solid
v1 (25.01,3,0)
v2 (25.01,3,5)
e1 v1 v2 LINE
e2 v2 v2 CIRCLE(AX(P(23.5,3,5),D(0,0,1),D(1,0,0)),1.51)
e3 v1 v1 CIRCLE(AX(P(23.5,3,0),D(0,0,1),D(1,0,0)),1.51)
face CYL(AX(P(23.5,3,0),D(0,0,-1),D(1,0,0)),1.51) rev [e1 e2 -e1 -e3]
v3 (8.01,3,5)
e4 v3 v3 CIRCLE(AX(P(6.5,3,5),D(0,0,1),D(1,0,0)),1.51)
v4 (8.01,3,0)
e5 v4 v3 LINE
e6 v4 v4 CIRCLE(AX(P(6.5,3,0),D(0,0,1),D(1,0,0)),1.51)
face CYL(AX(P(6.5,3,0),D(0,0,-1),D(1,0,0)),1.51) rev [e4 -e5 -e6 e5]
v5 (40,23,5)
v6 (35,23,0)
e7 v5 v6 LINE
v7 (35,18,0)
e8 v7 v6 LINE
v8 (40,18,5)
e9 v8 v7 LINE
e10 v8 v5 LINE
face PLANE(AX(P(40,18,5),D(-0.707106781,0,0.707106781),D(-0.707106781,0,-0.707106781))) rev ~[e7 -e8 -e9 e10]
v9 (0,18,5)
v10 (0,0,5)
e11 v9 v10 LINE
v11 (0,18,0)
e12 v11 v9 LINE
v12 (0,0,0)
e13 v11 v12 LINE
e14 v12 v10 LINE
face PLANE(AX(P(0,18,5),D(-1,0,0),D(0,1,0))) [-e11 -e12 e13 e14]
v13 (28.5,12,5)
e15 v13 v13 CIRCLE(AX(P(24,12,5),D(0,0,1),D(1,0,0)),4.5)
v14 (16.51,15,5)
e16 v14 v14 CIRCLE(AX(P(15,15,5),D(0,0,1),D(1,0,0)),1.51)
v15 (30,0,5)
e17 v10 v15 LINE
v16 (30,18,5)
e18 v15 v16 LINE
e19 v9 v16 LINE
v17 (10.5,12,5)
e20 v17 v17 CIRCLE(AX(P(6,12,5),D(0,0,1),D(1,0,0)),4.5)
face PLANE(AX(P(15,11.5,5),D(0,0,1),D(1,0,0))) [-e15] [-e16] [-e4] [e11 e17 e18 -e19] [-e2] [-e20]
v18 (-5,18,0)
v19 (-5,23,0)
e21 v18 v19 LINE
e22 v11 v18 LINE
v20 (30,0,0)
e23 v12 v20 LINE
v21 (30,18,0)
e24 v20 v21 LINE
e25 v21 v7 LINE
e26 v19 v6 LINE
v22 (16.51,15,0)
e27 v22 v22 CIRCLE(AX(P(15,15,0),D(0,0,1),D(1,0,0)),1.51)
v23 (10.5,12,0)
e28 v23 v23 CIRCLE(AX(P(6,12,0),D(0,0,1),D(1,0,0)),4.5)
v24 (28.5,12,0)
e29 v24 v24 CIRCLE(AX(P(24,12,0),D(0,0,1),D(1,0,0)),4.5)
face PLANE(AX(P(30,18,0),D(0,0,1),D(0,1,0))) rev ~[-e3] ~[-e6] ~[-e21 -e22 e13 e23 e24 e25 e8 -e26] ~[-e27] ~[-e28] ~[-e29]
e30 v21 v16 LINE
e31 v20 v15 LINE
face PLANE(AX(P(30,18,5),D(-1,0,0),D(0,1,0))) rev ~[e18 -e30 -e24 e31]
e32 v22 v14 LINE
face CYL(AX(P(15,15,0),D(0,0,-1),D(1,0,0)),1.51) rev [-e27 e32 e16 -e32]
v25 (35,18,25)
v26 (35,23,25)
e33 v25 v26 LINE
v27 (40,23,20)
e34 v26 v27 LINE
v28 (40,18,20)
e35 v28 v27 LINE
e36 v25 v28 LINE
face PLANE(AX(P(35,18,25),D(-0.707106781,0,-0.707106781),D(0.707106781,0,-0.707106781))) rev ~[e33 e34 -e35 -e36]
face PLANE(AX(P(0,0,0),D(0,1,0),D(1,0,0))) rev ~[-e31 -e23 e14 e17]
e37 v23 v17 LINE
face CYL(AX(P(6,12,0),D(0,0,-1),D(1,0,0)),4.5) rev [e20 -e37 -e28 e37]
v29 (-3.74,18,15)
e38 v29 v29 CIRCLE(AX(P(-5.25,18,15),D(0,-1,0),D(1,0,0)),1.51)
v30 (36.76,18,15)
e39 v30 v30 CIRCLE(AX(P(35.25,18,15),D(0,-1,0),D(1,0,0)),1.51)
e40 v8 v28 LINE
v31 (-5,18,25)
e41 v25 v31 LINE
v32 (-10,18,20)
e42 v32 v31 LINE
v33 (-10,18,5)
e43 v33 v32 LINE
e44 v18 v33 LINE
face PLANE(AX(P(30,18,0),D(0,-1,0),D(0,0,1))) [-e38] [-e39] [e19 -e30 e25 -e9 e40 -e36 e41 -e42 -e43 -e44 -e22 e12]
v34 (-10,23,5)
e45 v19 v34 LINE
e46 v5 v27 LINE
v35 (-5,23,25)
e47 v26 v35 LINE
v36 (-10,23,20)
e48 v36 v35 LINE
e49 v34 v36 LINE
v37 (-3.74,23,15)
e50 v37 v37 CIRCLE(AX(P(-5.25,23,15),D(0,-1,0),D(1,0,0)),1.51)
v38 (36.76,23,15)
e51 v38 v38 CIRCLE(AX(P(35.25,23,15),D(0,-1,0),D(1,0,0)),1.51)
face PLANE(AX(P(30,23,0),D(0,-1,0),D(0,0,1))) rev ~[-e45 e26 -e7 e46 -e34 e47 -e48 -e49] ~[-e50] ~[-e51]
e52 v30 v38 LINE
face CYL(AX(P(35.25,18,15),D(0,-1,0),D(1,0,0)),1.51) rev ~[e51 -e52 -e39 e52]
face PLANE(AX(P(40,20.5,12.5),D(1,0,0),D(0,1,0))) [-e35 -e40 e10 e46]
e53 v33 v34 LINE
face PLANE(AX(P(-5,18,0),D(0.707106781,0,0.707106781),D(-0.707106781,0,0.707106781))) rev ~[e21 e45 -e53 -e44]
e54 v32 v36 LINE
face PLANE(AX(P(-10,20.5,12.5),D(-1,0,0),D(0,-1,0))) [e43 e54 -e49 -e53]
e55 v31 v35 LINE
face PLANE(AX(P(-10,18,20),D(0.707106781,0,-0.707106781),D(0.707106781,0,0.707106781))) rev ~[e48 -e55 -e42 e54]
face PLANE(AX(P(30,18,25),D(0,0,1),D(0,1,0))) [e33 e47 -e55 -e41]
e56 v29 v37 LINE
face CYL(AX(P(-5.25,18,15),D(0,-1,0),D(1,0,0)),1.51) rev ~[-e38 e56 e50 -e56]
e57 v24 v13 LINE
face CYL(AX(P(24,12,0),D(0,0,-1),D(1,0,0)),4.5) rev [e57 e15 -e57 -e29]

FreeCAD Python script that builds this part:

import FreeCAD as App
import Part
import Sketcher

V = App.Vector
Q = App.Units.Quantity

doc = App.newDocument("Part")
body = doc.addObject("PartDesign::Body", "Body")

# Sketch on XY plane
sketch1 = doc.addObject("Sketcher::SketchObject", "Sketch")
body.addObject(sketch1)
sketch1.AttachmentSupport = (doc.XY_Plane, [""])
sketch1.MapMode = "FlatFace"
sketch1.addGeometry([
    Part.LineSegment(V(0, 0, 0), V(30, 0, 0)),  # 0
    Part.LineSegment(V(30, 0, 0), V(30, 23, 0)),  # 1
    Part.LineSegment(V(30, 23, 0), V(0, 23, 0)),  # 2
    Part.LineSegment(V(0, 23, 0), V(0, 0, 0)),  # 3
    Part.Circle(V(6.5, 3, 0), V(0, 0, 1), 1.51),  # 4
    Part.Circle(V(23.5, 3, 0), V(0, 0, 1), 1.51),  # 5
    Part.Circle(V(6, 12, 0), V(0, 0, 1), 4.5),  # 6
    Part.Circle(V(24, 12, 0), V(0, 0, 1), 4.5),  # 7
    Part.Circle(V(15, 15, 0), V(0, 0, 1), 1.51),  # 8
], False)
sketch1.addConstraint([
    Sketcher.Constraint("Coincident", 0, 2, 1, 1),
    Sketcher.Constraint("Coincident", 1, 2, 2, 1),
    Sketcher.Constraint("Coincident", 2, 2, 3, 1),
    Sketcher.Constraint("Coincident", 3, 2, 0, 1),
    Sketcher.Constraint("Horizontal", 0),
    Sketcher.Constraint("Vertical", 1),
    Sketcher.Constraint("Horizontal", 2),
    Sketcher.Constraint("Vertical", 3),
    Sketcher.Constraint("Coincident", 3, 2, -1, 1),
    Sketcher.Constraint("Equal", 4, 5),
    Sketcher.Constraint("Equal", 6, 7),
    Sketcher.Constraint("Equal", 5, 8),
    Sketcher.Constraint("Horizontal", 4, 3, 5, 3),
    Sketcher.Constraint("Horizontal", 6, 3, 7, 3),
    Sketcher.Constraint("Diameter", 6, Q("9 mm")),
    Sketcher.Constraint("Diameter", 4, Q("3.02 mm")),
    Sketcher.Constraint("DistanceX", 0, 1, 0, 2, Q("30 mm")),
    Sketcher.Constraint("DistanceY", 1, 1, 1, 2, Q("23 mm")),
    Sketcher.Constraint("DistanceY", -1, 1, 4, 3, Q("3 mm")),
    Sketcher.Constraint("DistanceX", -1, 1, 6, 3, Q("6 mm")),
    Sketcher.Constraint("DistanceY", -1, 1, 6, 3, Q("12 mm")),
    Sketcher.Constraint("DistanceX", -1, 1, 7, 3, Q("24 mm")),
    Sketcher.Constraint("DistanceX", -1, 1, 8, 3, Q("15 mm")),
    Sketcher.Constraint("DistanceY", -1, 1, 8, 3, Q("15 mm")),
    Sketcher.Constraint("DistanceX", 4, 3, 5, 3, Q("17 mm")),
    Sketcher.Constraint("DistanceX", -1, 1, 4, 3, Q("6.5 mm")),
])
pad1 = doc.addObject("PartDesign::Pad", "Pad")
body.addObject(pad1)
pad1.Profile = sketch1
pad1.Length = 5

# Sketch on XY plane
sketch2 = doc.addObject("Sketcher::SketchObject", "Sketch001")
body.addObject(sketch2)
sketch2.AttachmentSupport = (doc.XY_Plane, [""])
sketch2.MapMode = "FlatFace"
sketch2.AttachmentOffset = App.Placement(V(0, 0, 5), App.Rotation())
sketch2.addGeometry([
    Part.LineSegment(V(0, 23, 0), V(0, 18, 0)),
    Part.LineSegment(V(0, 18, 0), V(30, 18, 0)),
    Part.LineSegment(V(30, 18, 0), V(30, 23, 0)),
    Part.LineSegment(V(30, 23, 0), V(0, 23, 0)),
], False)
sketch2.addConstraint([
    Sketcher.Constraint("Coincident", 0, 2, 1, 1),
    Sketcher.Constraint("Coincident", 1, 2, 2, 1),
    Sketcher.Constraint("Coincident", 2, 2, 3, 1),
    Sketcher.Constraint("Coincident", 3, 2, 0, 1),
    Sketcher.Constraint("Vertical", 0),
    Sketcher.Constraint("Horizontal", 1),
    Sketcher.Constraint("Vertical", 2),
    Sketcher.Constraint("Horizontal", 3),
    Sketcher.Constraint("PointOnObject", 0, 2, -2),
    Sketcher.Constraint("DistanceX", 1, 1, 1, 2, Q("30 mm")),
    Sketcher.Constraint("DistanceY", 0, 2, 0, 1, Q("5 mm")),
    Sketcher.Constraint("DistanceY", -1, 1, 0, 2, Q("18 mm")),
])
pad2 = doc.addObject("PartDesign::Pad", "Pad001")
body.addObject(pad2)
pad2.Profile = sketch2
pad2.Length = 20

# Sketch on YZ plane
sketch3 = doc.addObject("Sketcher::SketchObject", "Sketch002")
body.addObject(sketch3)
sketch3.AttachmentSupport = (doc.YZ_Plane, [""])
sketch3.MapMode = "FlatFace"
sketch3.addGeometry([
    Part.LineSegment(V(23, 25, 0), V(23, 0, 0)),
    Part.LineSegment(V(23, 0, 0), V(18, 0, 0)),
    Part.LineSegment(V(18, 0, 0), V(18, 25, 0)),
    Part.LineSegment(V(18, 25, 0), V(23, 25, 0)),
], False)
sketch3.addConstraint([
    Sketcher.Constraint("Coincident", 0, 2, 1, 1),
    Sketcher.Constraint("Coincident", 1, 2, 2, 1),
    Sketcher.Constraint("Coincident", 2, 2, 3, 1),
    Sketcher.Constraint("Coincident", 3, 2, 0, 1),
    Sketcher.Constraint("Vertical", 0),
    Sketcher.Constraint("Horizontal", 1),
    Sketcher.Constraint("Vertical", 2),
    Sketcher.Constraint("Horizontal", 3),
    Sketcher.Constraint("PointOnObject", 0, 2, -1),
    Sketcher.Constraint("DistanceX", 1, 2, 1, 1, Q("5 mm")),
    Sketcher.Constraint("DistanceY", 0, 2, 0, 1, Q("25 mm")),
    Sketcher.Constraint("DistanceX", -1, 1, 0, 2, Q("23 mm")),
])
pad3 = doc.addObject("PartDesign::Pad", "Pad002")
body.addObject(pad3)
pad3.Profile = sketch3
pad3.Length = 10
pad3.Reversed = True

# Sketch on YZ plane
sketch4 = doc.addObject("Sketcher::SketchObject", "Sketch003")
body.addObject(sketch4)
sketch4.AttachmentSupport = (doc.YZ_Plane, [""])
sketch4.MapMode = "FlatFace"
sketch4.AttachmentOffset = App.Placement(V(0, 0, 30), App.Rotation())
sketch4.addGeometry([
    Part.LineSegment(V(18, 25, 0), V(18, 0, 0)),
    Part.LineSegment(V(18, 0, 0), V(23, 0, 0)),
    Part.LineSegment(V(23, 0, 0), V(23, 25, 0)),
    Part.LineSegment(V(23, 25, 0), V(18, 25, 0)),
], False)
sketch4.addConstraint([
    Sketcher.Constraint("Coincident", 0, 2, 1, 1),
    Sketcher.Constraint("Coincident", 1, 2, 2, 1),
    Sketcher.Constraint("Coincident", 2, 2, 3, 1),
    Sketcher.Constraint("Coincident", 3, 2, 0, 1),
    Sketcher.Constraint("Vertical", 0),
    Sketcher.Constraint("Horizontal", 1),
    Sketcher.Constraint("Vertical", 2),
    Sketcher.Constraint("Horizontal", 3),
    Sketcher.Constraint("PointOnObject", 0, 2, -1),
    Sketcher.Constraint("DistanceX", 1, 1, 1, 2, Q("5 mm")),
    Sketcher.Constraint("DistanceY", 0, 2, 0, 1, Q("25 mm")),
    Sketcher.Constraint("DistanceX", -1, 1, 0, 2, Q("18 mm")),
])
pad4 = doc.addObject("PartDesign::Pad", "Pad003")
body.addObject(pad4)
pad4.Profile = sketch4
pad4.Length = 10

# Sketch on XZ plane
sketch5 = doc.addObject("Sketcher::SketchObject", "Sketch004")
body.addObject(sketch5)
sketch5.AttachmentSupport = (doc.XZ_Plane, [""])
sketch5.MapMode = "FlatFace"
sketch5.AttachmentOffset = App.Placement(V(0, 0, -18), App.Rotation())
sketch5.addGeometry([
    Part.LineSegment(V(-5, 25, 0), V(-10, 25, 0)),  # 0
    Part.LineSegment(V(-10, 25, 0), V(-10, 20, 0)),  # 1
    Part.LineSegment(V(-10, 20, 0), V(-5, 25, 0)),  # 2
    Part.LineSegment(V(-5, 0, 0), V(-10, 5, 0)),  # 3
    Part.LineSegment(V(-10, 5, 0), V(-10, 0, 0)),  # 4
    Part.LineSegment(V(-10, 0, 0), V(-5, 0, 0)),  # 5
    Part.LineSegment(V(40, 5, 0), V(35, 0, 0)),  # 6
    Part.LineSegment(V(35, 0, 0), V(40, 0, 0)),  # 7
    Part.LineSegment(V(40, 0, 0), V(40, 5, 0)),  # 8
    Part.LineSegment(V(40, 25, 0), V(35, 25, 0)),  # 9
    Part.LineSegment(V(35, 25, 0), V(40, 20, 0)),  # 10
    Part.LineSegment(V(40, 20, 0), V(40, 25, 0)),  # 11
], False)
sketch5.addConstraint([
    Sketcher.Constraint("Coincident", 0, 2, 1, 1),
    Sketcher.Constraint("Coincident", 1, 2, 2, 1),
    Sketcher.Constraint("Coincident", 2, 2, 0, 1),
    Sketcher.Constraint("Coincident", 3, 2, 4, 1),
    Sketcher.Constraint("Coincident", 4, 2, 5, 1),
    Sketcher.Constraint("Coincident", 5, 2, 3, 1),
    Sketcher.Constraint("Coincident", 6, 2, 7, 1),
    Sketcher.Constraint("Coincident", 7, 2, 8, 1),
    Sketcher.Constraint("Coincident", 8, 2, 6, 1),
    Sketcher.Constraint("Coincident", 9, 2, 10, 1),
    Sketcher.Constraint("Coincident", 10, 2, 11, 1),
    Sketcher.Constraint("Coincident", 11, 2, 9, 1),
    Sketcher.Constraint("Horizontal", 0),
    Sketcher.Constraint("Vertical", 1),
    Sketcher.Constraint("Vertical", 4),
    Sketcher.Constraint("Horizontal", 5),
    Sketcher.Constraint("Horizontal", 7),
    Sketcher.Constraint("Vertical", 8),
    Sketcher.Constraint("Horizontal", 9),
    Sketcher.Constraint("Vertical", 11),
    Sketcher.Constraint("PointOnObject", 4, 2, -1),
    Sketcher.Constraint("PointOnObject", 6, 2, -1),
    Sketcher.Constraint("Perpendicular", 2, 3),
    Sketcher.Constraint("Perpendicular", 3, 6),
    Sketcher.Constraint("Perpendicular", 6, 10),
    Sketcher.Constraint("Horizontal", 3, 2, 8, 2),
    Sketcher.Constraint("Horizontal", 2, 2, 9, 2),
    Sketcher.Constraint("Horizontal", 1, 2, 10, 2),
    Sketcher.Constraint("Vertical", 1, 2, 3, 2),
    Sketcher.Constraint("Vertical", 2, 2, 5, 2),
    Sketcher.Constraint("Vertical", 6, 2, 9, 2),
    Sketcher.Constraint("Vertical", 8, 2, 10, 2),
    Sketcher.Constraint("DistanceX", 0, 2, 0, 1, Q("5 mm")),
    Sketcher.Constraint("DistanceX", 0, 2, -1, 1, Q("10 mm")),
    Sketcher.Constraint("DistanceY", -1, 1, 0, 2, Q("25 mm")),
    Sketcher.Constraint("DistanceX", -1, 1, 6, 2, Q("35 mm")),
])
pocket1 = doc.addObject("PartDesign::Pocket", "Pocket")
body.addObject(pocket1)
pocket1.Profile = sketch5
pocket1.Type = "ThroughAll"

# Sketch on XZ plane
sketch6 = doc.addObject("Sketcher::SketchObject", "Sketch005")
body.addObject(sketch6)
sketch6.AttachmentSupport = (doc.XZ_Plane, [""])
sketch6.MapMode = "FlatFace"
sketch6.AttachmentOffset = App.Placement(V(0, 0, -18), App.Rotation())
sketch6.addGeometry([
    Part.Circle(V(-5.25, 15, 0), V(0, 0, 1), 1.51),
    Part.Circle(V(35.25, 15, 0), V(0, 0, 1), 1.51),
], False)
sketch6.addConstraint([
    Sketcher.Constraint("Equal", 0, 1),
    Sketcher.Constraint("Horizontal", 0, 3, 1, 3),
    Sketcher.Constraint("Diameter", 0, Q("3.02 mm")),
    Sketcher.Constraint("DistanceY", -1, 1, 0, 3, Q("15 mm")),
    Sketcher.Constraint("DistanceX", 0, 3, 1, 3, Q("40.5 mm")),
    Sketcher.Constraint("DistanceX", 0, 3, -1, 1, Q("5.25 mm")),
])
pocket2 = doc.addObject("PartDesign::Pocket", "Pocket001")
body.addObject(pocket2)
pocket2.Profile = sketch6
pocket2.Type = "ThroughAll"

doc.recompute()
